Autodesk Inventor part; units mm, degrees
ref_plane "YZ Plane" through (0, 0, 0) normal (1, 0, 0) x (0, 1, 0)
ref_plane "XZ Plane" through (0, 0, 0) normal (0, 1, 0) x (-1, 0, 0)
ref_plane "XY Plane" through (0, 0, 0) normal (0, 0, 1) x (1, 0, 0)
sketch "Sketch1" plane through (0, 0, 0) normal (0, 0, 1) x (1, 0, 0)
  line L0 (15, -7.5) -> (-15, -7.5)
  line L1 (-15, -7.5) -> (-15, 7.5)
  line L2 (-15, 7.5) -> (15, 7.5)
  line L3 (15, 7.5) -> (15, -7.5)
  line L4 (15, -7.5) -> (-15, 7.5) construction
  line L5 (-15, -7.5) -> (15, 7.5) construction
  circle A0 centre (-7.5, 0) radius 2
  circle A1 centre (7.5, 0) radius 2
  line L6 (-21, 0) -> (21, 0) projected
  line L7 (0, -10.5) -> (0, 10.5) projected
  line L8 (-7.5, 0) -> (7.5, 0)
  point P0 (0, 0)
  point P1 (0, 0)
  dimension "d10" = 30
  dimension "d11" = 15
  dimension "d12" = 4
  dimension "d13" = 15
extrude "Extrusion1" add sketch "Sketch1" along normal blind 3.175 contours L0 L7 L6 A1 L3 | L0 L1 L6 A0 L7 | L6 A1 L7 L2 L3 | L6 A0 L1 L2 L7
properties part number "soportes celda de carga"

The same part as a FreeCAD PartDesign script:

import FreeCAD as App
import Part
import Sketcher

V = App.Vector
Q = App.Units.Quantity


def add_polygon(sketch, points):
    """Adds a closed chain of lines whose ends are joined by coincident constraints."""
    first, n = sketch.GeometryCount, len(points)
    for a, b in zip(points, points[1:] + points[:1]):
        sketch.addGeometry(Part.LineSegment(App.Vector(*a, 0), App.Vector(*b, 0)), False)
    for i in range(n):
        sketch.addConstraint(Sketcher.Constraint("Coincident", first + i, 2, first + (i + 1) % n, 1))

doc = App.newDocument("Part")
params = doc.addObject("Spreadsheet::Sheet", "Params")
for row, (alias, value) in enumerate([
    ("sketch1_diameter", "4 mm"),
    ("sketch1_width", "30 mm"),
    ("sketch1_height", "15 mm"),
    ("pad1_length", "3.175 mm"),
], start=1):
    params.set(f"A{row}", alias)
    params.set(f"B{row}", "=" + value)
    params.setAlias(f"B{row}", alias)

body = doc.addObject("PartDesign::Body", "Body")

sketch1 = body.newObject("Sketcher::SketchObject", "Sketch")
sketch1.AttachmentSupport = (doc.getObject("XY_Plane"), [""])
sketch1.MapMode = "FlatFace"
add_polygon(sketch1, [(15, -7.5), (15, 7.5), (-15, 7.5), (-15, -7.5)])
sketch1.addGeometry(Part.Circle(V(7.5, 0, 0), V(0, 0, 1), 2), False)
sketch1.addGeometry(Part.Circle(V(-7.5, 0, 0), V(0, 0, 1), 2), False)
sketch1.addConstraint([
    Sketcher.Constraint("Vertical", 0),
    Sketcher.Constraint("Horizontal", 1),
    Sketcher.Constraint("Vertical", 2),
    Sketcher.Constraint("Horizontal", 3),
    Sketcher.Constraint("Equal", 4, 5),
    Sketcher.Constraint("Symmetric", 4, 3, 5, 3, -1, 1),
    Sketcher.Constraint("Symmetric", 0, 2, 2, 2, -1, 1),
    Sketcher.Constraint("PointOnObject", 4, 3, -1),
    Sketcher.Constraint("Diameter", 4, Q("4 mm")),
    Sketcher.Constraint("DistanceX", 1, 2, 1, 1, Q("30 mm")),
    Sketcher.Constraint("DistanceY", 0, 1, 0, 2, Q("15 mm")),
    Sketcher.Constraint("DistanceX", 5, 3, 4, 3, Q("15 mm")),
])
sketch1.setExpression("Constraints[12]", "Params.sketch1_diameter")
sketch1.setExpression("Constraints[13]", "Params.sketch1_width")
sketch1.setExpression("Constraints[14]", "Params.sketch1_height")
pad1 = body.newObject("PartDesign::Pad", "Pad")
pad1.Profile = sketch1
pad1.setExpression("Length", "Params.pad1_length")

doc.recompute()
